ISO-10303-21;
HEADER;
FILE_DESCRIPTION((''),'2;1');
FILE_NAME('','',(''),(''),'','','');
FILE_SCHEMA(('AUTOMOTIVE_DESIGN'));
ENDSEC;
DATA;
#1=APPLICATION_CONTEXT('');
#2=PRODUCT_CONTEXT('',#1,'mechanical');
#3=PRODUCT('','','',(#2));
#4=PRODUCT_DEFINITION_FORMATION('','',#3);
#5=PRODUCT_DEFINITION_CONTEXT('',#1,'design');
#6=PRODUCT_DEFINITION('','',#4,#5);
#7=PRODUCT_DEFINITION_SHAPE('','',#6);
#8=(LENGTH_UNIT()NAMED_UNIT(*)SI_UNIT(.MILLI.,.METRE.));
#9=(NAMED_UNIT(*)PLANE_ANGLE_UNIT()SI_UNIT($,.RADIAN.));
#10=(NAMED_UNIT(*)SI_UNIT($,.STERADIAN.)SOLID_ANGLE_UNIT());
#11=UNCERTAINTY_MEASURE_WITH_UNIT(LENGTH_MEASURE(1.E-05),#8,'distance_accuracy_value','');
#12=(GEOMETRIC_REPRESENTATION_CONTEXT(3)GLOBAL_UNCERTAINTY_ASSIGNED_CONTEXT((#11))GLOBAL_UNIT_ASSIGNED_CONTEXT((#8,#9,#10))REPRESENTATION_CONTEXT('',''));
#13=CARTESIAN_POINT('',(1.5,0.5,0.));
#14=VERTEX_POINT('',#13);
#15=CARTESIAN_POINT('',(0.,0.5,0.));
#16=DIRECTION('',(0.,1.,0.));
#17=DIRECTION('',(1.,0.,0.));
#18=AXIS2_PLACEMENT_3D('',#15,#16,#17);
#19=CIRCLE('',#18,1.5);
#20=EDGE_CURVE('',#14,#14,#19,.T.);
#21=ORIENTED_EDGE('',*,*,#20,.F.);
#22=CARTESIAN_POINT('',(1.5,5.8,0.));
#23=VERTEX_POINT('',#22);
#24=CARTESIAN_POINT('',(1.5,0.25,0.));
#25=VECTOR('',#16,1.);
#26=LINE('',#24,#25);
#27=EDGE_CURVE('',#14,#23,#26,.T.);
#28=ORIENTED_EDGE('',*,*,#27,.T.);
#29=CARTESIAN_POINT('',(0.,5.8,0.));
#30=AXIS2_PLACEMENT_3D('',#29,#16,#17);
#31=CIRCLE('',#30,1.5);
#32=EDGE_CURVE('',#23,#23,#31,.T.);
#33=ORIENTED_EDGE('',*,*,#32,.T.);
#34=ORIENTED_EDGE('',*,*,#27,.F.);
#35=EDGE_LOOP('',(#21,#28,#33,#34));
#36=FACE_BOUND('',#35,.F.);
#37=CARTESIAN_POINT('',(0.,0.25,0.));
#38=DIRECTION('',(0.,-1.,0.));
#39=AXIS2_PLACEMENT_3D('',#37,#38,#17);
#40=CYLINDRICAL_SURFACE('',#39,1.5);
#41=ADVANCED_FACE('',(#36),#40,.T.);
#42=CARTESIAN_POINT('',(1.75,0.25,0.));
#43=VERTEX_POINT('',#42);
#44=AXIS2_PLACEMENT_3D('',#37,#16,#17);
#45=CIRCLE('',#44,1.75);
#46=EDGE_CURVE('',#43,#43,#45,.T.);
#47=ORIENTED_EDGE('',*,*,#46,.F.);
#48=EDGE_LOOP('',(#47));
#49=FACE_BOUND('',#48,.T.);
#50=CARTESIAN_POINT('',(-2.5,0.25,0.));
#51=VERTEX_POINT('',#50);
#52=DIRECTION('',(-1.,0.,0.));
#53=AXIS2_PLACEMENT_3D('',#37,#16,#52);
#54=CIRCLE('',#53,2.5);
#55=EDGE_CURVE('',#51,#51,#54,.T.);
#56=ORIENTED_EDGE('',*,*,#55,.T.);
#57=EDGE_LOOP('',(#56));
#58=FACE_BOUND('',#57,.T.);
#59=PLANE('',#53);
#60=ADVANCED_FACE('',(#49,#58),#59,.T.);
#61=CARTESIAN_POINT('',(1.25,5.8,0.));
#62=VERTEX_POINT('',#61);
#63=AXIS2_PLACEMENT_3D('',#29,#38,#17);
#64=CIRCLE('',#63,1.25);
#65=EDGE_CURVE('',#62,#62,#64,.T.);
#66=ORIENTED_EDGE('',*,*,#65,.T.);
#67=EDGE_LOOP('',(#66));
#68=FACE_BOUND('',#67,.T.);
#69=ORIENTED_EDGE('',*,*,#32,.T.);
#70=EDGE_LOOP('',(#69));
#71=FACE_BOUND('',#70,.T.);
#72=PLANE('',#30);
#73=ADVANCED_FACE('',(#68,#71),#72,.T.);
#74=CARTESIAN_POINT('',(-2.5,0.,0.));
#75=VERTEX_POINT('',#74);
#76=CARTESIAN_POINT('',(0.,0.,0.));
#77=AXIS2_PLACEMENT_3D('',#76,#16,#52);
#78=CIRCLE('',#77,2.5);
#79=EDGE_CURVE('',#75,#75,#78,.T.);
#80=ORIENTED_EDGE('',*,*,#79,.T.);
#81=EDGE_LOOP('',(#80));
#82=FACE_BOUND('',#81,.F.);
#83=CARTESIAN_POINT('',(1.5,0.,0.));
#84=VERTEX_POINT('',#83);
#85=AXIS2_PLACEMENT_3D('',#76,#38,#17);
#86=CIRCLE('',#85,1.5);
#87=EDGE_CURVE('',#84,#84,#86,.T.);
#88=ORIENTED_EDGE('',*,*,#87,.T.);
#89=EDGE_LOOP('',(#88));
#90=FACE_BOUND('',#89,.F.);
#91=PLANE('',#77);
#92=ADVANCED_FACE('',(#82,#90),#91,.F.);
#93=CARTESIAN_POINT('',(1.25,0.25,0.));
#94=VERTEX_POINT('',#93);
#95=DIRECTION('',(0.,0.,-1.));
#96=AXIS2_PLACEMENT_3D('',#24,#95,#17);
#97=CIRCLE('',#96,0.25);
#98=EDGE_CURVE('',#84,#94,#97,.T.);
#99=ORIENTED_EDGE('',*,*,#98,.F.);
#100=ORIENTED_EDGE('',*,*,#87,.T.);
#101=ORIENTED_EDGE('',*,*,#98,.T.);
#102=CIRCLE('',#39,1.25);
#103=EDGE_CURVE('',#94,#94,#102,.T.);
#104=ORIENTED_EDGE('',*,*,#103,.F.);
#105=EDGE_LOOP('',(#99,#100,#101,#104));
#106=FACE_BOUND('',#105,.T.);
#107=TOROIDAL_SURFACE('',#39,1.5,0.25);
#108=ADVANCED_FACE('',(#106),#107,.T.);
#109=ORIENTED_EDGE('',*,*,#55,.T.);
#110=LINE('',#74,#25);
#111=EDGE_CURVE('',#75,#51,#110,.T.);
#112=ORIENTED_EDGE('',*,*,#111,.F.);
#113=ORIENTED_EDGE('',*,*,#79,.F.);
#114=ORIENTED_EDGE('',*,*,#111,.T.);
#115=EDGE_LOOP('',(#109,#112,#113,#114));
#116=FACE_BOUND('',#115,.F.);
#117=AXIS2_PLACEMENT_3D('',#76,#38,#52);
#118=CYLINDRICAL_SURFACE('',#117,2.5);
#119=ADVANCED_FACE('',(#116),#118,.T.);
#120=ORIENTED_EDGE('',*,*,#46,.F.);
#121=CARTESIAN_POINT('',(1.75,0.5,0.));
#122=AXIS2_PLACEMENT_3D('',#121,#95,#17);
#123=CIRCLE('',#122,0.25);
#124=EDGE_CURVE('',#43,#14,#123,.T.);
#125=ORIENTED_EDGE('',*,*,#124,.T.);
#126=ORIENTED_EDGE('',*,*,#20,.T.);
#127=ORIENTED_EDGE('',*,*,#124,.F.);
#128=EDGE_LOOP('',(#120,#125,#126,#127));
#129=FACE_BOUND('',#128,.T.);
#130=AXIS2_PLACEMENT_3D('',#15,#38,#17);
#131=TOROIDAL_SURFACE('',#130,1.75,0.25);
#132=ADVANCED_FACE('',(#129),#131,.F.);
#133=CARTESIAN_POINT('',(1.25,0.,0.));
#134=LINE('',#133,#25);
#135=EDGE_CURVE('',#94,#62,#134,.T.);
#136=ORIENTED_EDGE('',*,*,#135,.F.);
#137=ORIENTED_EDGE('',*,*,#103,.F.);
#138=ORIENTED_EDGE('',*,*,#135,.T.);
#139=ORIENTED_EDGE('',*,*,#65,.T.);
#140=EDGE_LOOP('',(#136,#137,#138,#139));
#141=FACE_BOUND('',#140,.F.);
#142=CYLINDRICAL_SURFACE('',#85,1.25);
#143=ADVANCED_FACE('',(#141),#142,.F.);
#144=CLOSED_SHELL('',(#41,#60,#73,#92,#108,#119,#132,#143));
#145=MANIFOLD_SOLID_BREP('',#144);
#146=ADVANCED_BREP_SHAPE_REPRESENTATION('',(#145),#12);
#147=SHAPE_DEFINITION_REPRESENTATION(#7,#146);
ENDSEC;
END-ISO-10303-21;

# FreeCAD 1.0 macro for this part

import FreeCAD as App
import Part
import Sketcher
from FreeCAD import Vector


def edges_at(feature, points):
    """Names of the edges that pass closest to the given points."""
    edges = feature.Shape.Edges
    near = lambda p: min(range(len(edges)), key=lambda i: edges[i].distToShape(Part.Vertex(*p))[0])
    return sorted({f"Edge{near(p) + 1}" for p in points})

doc = App.newDocument("Part")
body = doc.addObject("PartDesign::Body", "Body")

sketch1 = doc.addObject("Sketcher::SketchObject", "Sketch")
body.addObject(sketch1)
sketch1.AttachmentSupport = (doc.XZ_Plane, [""])
sketch1.MapMode = "FlatFace"
sketch1.addGeometry(Part.Circle(Vector(0, 0, 0), Vector(0, 0, 1), 2.5), False)
sketch1.addConstraint(Sketcher.Constraint("Coincident", 0, 3, -1, 1))
sketch1.addConstraint(Sketcher.Constraint("Diameter", 0, 5.0))
pad1 = doc.addObject("PartDesign::Pad", "Pad")
body.addObject(pad1)
pad1.Profile = sketch1
pad1.Length = 0.25
pad1.Reversed = True

sketch2 = doc.addObject("Sketcher::SketchObject", "Sketch001")
body.addObject(sketch2)
sketch2.AttachmentSupport = (doc.XZ_Plane, [""])
sketch2.MapMode = "FlatFace"
sketch2.AttachmentOffset = App.Placement(Vector(0, 0, -0.25), App.Rotation())
sketch2.addGeometry(Part.Circle(Vector(0, 0, 0), Vector(0, 0, 1), 1.5), False)
sketch2.addConstraint(Sketcher.Constraint("Coincident", 0, 3, -1, 1))
sketch2.addConstraint(Sketcher.Constraint("Diameter", 0, 3.0))
pad2 = doc.addObject("PartDesign::Pad", "Pad001")
body.addObject(pad2)
pad2.Profile = sketch2
pad2.Length = 5.55
pad2.Reversed = True

sketch3 = doc.addObject("Sketcher::SketchObject", "Sketch002")
body.addObject(sketch3)
sketch3.AttachmentSupport = (doc.XZ_Plane, [""])
sketch3.MapMode = "FlatFace"
sketch3.addGeometry(Part.Circle(Vector(0, 0, 0), Vector(0, 0, 1), 1.25), False)
sketch3.addConstraint(Sketcher.Constraint("Coincident", 0, 3, -1, 1))
sketch3.addConstraint(Sketcher.Constraint("Diameter", 0, 2.5))
pocket1 = doc.addObject("PartDesign::Pocket", "Pocket")
body.addObject(pocket1)
pocket1.Profile = sketch3
pocket1.Length = 5.8
doc.recompute()

fillet = doc.addObject("PartDesign::Fillet", "Fillet")
body.addObject(fillet)
fillet.Base = (pocket1, edges_at(pocket1, [(-1.5, 0.25, 0)]))
fillet.Radius = 0.25
doc.recompute()

fillet2 = doc.addObject("PartDesign::Fillet", "Fillet001")
body.addObject(fillet2)
fillet2.Base = (fillet, edges_at(fillet, [(-1.25, 0, 0)]))
fillet2.Radius = 0.25

doc.recompute()
